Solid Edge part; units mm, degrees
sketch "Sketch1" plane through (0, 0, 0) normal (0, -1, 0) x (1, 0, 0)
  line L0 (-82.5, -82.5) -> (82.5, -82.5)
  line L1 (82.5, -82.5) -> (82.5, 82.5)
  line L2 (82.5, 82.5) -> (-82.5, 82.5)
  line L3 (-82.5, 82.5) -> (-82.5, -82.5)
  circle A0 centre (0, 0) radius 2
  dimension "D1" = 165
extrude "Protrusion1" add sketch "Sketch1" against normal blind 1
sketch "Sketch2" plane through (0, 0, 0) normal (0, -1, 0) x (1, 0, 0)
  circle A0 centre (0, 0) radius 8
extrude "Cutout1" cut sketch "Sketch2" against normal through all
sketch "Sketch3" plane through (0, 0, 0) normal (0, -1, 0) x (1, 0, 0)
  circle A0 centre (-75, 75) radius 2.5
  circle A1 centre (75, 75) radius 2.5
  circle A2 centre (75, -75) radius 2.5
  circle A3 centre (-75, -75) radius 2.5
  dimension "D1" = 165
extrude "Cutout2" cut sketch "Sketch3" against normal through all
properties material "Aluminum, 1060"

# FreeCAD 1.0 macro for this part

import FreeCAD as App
import Part
import Sketcher

V = App.Vector
Q = App.Units.Quantity


def add_polygon(sketch, points):
    """Adds a closed chain of lines whose ends are joined by coincident constraints."""
    first, n = sketch.GeometryCount, len(points)
    for a, b in zip(points, points[1:] + points[:1]):
        sketch.addGeometry(Part.LineSegment(App.Vector(*a, 0), App.Vector(*b, 0)), False)
    for i in range(n):
        sketch.addConstraint(Sketcher.Constraint("Coincident", first + i, 2, first + (i + 1) % n, 1))

doc = App.newDocument("Part")
body = doc.addObject("PartDesign::Body", "Body")

sketch1 = body.newObject("Sketcher::SketchObject", "Sketch")
sketch1.AttachmentSupport = (doc.getObject("XZ_Plane"), [""])
sketch1.MapMode = "FlatFace"
add_polygon(sketch1, [(-82.5, 82.5), (-82.5, -82.5), (82.5, -82.5), (82.5, 82.5)])
sketch1.addGeometry(Part.Circle(V(0, 0, 0), V(0, 0, 1), 2), False)
sketch1.addConstraint([
    Sketcher.Constraint("Vertical", 0),
    Sketcher.Constraint("Horizontal", 1),
    Sketcher.Constraint("Vertical", 2),
    Sketcher.Constraint("Horizontal", 3),
    Sketcher.Constraint("Coincident", 4, 3, -1, 1),
    Sketcher.Constraint("Symmetric", 0, 2, 2, 2, -1, 1),
    Sketcher.Constraint("Equal", 3, 0),
    Sketcher.Constraint("Diameter", 4, Q("4 mm")),
    Sketcher.Constraint("DistanceX", 1, 1, 1, 2, Q("165 mm")),
])
pad1 = body.newObject("PartDesign::Pad", "Pad")
pad1.Profile = sketch1
pad1.Length = 1
pad1.Reversed = True

sketch2 = body.newObject("Sketcher::SketchObject", "Sketch001")
sketch2.AttachmentSupport = (doc.getObject("XZ_Plane"), [""])
sketch2.MapMode = "FlatFace"
sketch2.addGeometry(Part.Circle(V(0, 0, 0), V(0, 0, 1), 8), False)
sketch2.addConstraint([
    Sketcher.Constraint("Coincident", 0, 3, -1, 1),
    Sketcher.Constraint("Diameter", 0, Q("16 mm")),
])
pocket1 = body.newObject("PartDesign::Pocket", "Pocket")
pocket1.Profile = sketch2
pocket1.Type = "ThroughAll"

sketch3 = body.newObject("Sketcher::SketchObject", "Sketch002")
sketch3.AttachmentSupport = (doc.getObject("XZ_Plane"), [""])
sketch3.MapMode = "FlatFace"
sketch3.addGeometry([
    Part.Circle(V(-75, 75, 0), V(0, 0, 1), 2.5),
    Part.Circle(V(75, 75, 0), V(0, 0, 1), 2.5),
    Part.Circle(V(75, -75, 0), V(0, 0, 1), 2.5),
    Part.Circle(V(-75, -75, 0), V(0, 0, 1), 2.5),
], False)
sketch3.addConstraint([
    Sketcher.Constraint("Equal", 0, 1),
    Sketcher.Constraint("Equal", 1, 2),
    Sketcher.Constraint("Equal", 2, 3),
    Sketcher.Constraint("Symmetric", 0, 3, 2, 3, -1, 1),
    Sketcher.Constraint("Symmetric", 1, 3, 3, 3, -1, 1),
    Sketcher.Constraint("Symmetric", 0, 3, 1, 3, -2),
    Sketcher.Constraint("Diameter", 0, Q("5 mm")),
    Sketcher.Constraint("DistanceX", 0, 3, -1, 1, Q("75 mm")),
    Sketcher.Constraint("DistanceY", -1, 1, 0, 3, Q("75 mm")),
])
pocket2 = body.newObject("PartDesign::Pocket", "Pocket001")
pocket2.Profile = sketch3
pocket2.Type = "ThroughAll"

doc.recompute()
